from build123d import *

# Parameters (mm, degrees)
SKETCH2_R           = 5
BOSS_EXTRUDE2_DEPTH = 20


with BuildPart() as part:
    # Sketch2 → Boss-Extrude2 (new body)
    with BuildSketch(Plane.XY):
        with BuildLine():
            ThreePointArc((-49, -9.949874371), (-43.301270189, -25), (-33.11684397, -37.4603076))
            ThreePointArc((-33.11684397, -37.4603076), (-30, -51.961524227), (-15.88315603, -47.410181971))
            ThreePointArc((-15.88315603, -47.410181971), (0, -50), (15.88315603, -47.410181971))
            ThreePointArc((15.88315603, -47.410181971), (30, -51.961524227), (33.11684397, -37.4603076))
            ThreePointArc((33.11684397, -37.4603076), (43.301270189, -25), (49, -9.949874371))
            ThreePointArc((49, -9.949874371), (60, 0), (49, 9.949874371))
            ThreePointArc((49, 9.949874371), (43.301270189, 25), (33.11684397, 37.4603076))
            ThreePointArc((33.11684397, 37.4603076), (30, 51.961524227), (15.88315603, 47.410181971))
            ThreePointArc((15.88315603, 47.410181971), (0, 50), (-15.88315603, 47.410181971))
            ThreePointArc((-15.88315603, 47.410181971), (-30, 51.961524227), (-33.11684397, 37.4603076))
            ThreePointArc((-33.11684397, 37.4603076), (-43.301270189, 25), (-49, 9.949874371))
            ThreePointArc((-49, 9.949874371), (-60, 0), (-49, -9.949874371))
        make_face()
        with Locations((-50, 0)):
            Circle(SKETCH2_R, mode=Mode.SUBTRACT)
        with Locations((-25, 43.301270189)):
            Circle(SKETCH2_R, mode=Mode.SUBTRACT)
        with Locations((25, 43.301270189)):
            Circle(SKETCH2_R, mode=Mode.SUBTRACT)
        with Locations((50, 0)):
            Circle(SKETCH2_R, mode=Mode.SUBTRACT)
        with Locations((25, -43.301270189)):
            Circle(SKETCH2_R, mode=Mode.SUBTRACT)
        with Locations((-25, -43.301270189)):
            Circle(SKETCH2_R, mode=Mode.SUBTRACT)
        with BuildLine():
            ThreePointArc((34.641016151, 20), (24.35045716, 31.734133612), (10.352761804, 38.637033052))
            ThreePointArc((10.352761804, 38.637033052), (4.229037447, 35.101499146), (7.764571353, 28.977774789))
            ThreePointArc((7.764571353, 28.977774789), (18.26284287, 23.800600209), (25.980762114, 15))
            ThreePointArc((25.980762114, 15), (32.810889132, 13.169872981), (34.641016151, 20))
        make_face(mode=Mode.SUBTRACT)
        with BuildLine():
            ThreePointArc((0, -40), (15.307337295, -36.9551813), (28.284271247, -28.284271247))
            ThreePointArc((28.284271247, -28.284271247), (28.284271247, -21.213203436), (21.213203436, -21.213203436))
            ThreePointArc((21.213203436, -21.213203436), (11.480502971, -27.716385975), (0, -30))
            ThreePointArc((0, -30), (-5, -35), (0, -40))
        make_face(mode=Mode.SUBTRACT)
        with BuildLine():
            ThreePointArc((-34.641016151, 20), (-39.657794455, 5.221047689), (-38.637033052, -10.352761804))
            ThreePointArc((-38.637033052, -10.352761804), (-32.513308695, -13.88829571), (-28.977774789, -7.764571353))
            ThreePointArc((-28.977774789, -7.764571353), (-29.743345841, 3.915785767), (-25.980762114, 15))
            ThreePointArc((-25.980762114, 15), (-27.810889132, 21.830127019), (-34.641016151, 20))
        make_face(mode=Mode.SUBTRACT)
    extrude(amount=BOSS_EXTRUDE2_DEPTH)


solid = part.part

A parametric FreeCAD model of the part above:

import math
import FreeCAD as App
import Part
import Sketcher

doc = App.newDocument("Part")
body = doc.addObject("PartDesign::Body", "Body")

sketch1 = body.newObject("Sketcher::SketchObject", "Sketch")
sketch1.AttachmentSupport = (doc.getObject("XY_Plane"), [""])
sketch1.MapMode = "FlatFace"
sketch1.addGeometry([
    Part.ArcOfCircle(Part.Circle(App.Vector(0, 0, 0), App.Vector(0, 0, 1), 50), math.radians(-169), math.radians(-131)),
    Part.ArcOfCircle(Part.Circle(App.Vector(-25, -43.3, 0), App.Vector(0, 0, 1), 10), math.radians(144), math.radians(336)),
    Part.ArcOfCircle(Part.Circle(App.Vector(0, 0, 0), App.Vector(0, 0, 1), 50), math.radians(-109), math.radians(-71)),
    Part.ArcOfCircle(Part.Circle(App.Vector(25, -43.3, 0), App.Vector(0, 0, 1), 10), math.radians(-156), math.radians(36)),
    Part.ArcOfCircle(Part.Circle(App.Vector(0, 0, 0), App.Vector(0, 0, 1), 50), math.radians(-49), math.radians(-11)),
    Part.ArcOfCircle(Part.Circle(App.Vector(50, 0, 0), App.Vector(0, 0, 1), 10), math.radians(-96), math.radians(96)),
    Part.ArcOfCircle(Part.Circle(App.Vector(0, 0, 0), App.Vector(0, 0, 1), 50), math.radians(11), math.radians(49)),
    Part.ArcOfCircle(Part.Circle(App.Vector(25, 43.3, 0), App.Vector(0, 0, 1), 10), math.radians(-36), math.radians(156)),
    Part.ArcOfCircle(Part.Circle(App.Vector(0, 0, 0), App.Vector(0, 0, 1), 50), math.radians(71), math.radians(109)),
    Part.ArcOfCircle(Part.Circle(App.Vector(-25, 43.3, 0), App.Vector(0, 0, 1), 10), math.radians(24), math.radians(216)),
    Part.ArcOfCircle(Part.Circle(App.Vector(0, 0, 0), App.Vector(0, 0, 1), 50), math.radians(131), math.radians(169)),
    Part.ArcOfCircle(Part.Circle(App.Vector(-50, 0, 0), App.Vector(0, 0, 1), 10), math.radians(84), math.radians(276)),
    Part.Circle(App.Vector(-25, -43.3, 0), App.Vector(0, 0, 1), 5),
    Part.Circle(App.Vector(-50, 0, 0), App.Vector(0, 0, 1), 5),
    Part.Circle(App.Vector(25, -43.3, 0), App.Vector(0, 0, 1), 5),
    Part.ArcOfCircle(Part.Circle(App.Vector(0, 0, 0), App.Vector(0, 0, 1), 40), math.radians(-90), math.radians(-45)),
    Part.ArcOfCircle(Part.Circle(App.Vector(0, -35, 0), App.Vector(0, 0, 1), 5), math.radians(90), math.radians(270)),
    Part.ArcOfCircle(Part.Circle(App.Vector(0, 0, 0), App.Vector(0, 0, 1), 30), math.radians(-90), math.radians(-45)),
    Part.ArcOfCircle(Part.Circle(App.Vector(24.7, -24.7, 0), App.Vector(0, 0, 1), 5), math.radians(-45), math.radians(135)),
    Part.Circle(App.Vector(50, 0, 0), App.Vector(0, 0, 1), 5),
    Part.ArcOfCircle(Part.Circle(App.Vector(0, 0, 0), App.Vector(0, 0, 1), 40), math.radians(150), math.radians(195)),
    Part.ArcOfCircle(Part.Circle(App.Vector(-30.3, 17.5, 0), App.Vector(0, 0, 1), 5), math.radians(-30), math.radians(150)),
    Part.ArcOfCircle(Part.Circle(App.Vector(0, 0, 0), App.Vector(0, 0, 1), 30), math.radians(150), math.radians(195)),
    Part.ArcOfCircle(Part.Circle(App.Vector(-33.8, -9.1, 0), App.Vector(0, 0, 1), 5), math.radians(-165), math.radians(15)),
    Part.Circle(App.Vector(-25, 43.3, 0), App.Vector(0, 0, 1), 5),
    Part.ArcOfCircle(Part.Circle(App.Vector(0, 0, 0), App.Vector(0, 0, 1), 40), math.radians(30), math.radians(75)),
    Part.ArcOfCircle(Part.Circle(App.Vector(30.3, 17.5, 0), App.Vector(0, 0, 1), 5), math.radians(-150), math.radians(30)),
    Part.ArcOfCircle(Part.Circle(App.Vector(0, 0, 0), App.Vector(0, 0, 1), 30), math.radians(30), math.radians(75)),
    Part.ArcOfCircle(Part.Circle(App.Vector(9.1, 33.8, 0), App.Vector(0, 0, 1), 5), math.radians(75), math.radians(255)),
    Part.Circle(App.Vector(25, 43.3, 0), App.Vector(0, 0, 1), 5),
], False)
sketch1.addConstraint([
    Sketcher.Constraint("Coincident", 0, 2, 1, 1),
    Sketcher.Constraint("Coincident", 1, 2, 2, 1),
    Sketcher.Constraint("Coincident", 2, 2, 3, 1),
    Sketcher.Constraint("Coincident", 3, 2, 4, 1),
    Sketcher.Constraint("Coincident", 4, 2, 5, 1),
    Sketcher.Constraint("Coincident", 5, 2, 6, 1),
    Sketcher.Constraint("Coincident", 6, 2, 7, 1),
    Sketcher.Constraint("Coincident", 7, 2, 8, 1),
    Sketcher.Constraint("Coincident", 8, 2, 9, 1),
    Sketcher.Constraint("Coincident", 9, 2, 10, 1),
    Sketcher.Constraint("Coincident", 10, 2, 11, 1),
    Sketcher.Constraint("Coincident", 11, 2, 0, 1),
    Sketcher.Constraint("Tangent", 15, 1, 16, 2),
    Sketcher.Constraint("Tangent", 16, 1, 17, 1),
    Sketcher.Constraint("Tangent", 17, 2, 18, 2),
    Sketcher.Constraint("Tangent", 18, 1, 15, 2),
    Sketcher.Constraint("Tangent", 20, 1, 21, 2),
    Sketcher.Constraint("Tangent", 21, 1, 22, 1),
    Sketcher.Constraint("Tangent", 22, 2, 23, 2),
    Sketcher.Constraint("Tangent", 23, 1, 20, 2),
    Sketcher.Constraint("Tangent", 25, 1, 26, 2),
    Sketcher.Constraint("Tangent", 26, 1, 27, 1),
    Sketcher.Constraint("Tangent", 27, 2, 28, 2),
    Sketcher.Constraint("Tangent", 28, 1, 25, 2),
    Sketcher.Constraint("Coincident", 0, 3, -1, 1),
    Sketcher.Constraint("Coincident", 2, 3, -1, 1),
    Sketcher.Constraint("Coincident", 4, 3, -1, 1),
    Sketcher.Constraint("Coincident", 6, 3, -1, 1),
    Sketcher.Constraint("Coincident", 8, 3, -1, 1),
    Sketcher.Constraint("Coincident", 10, 3, -1, 1),
    Sketcher.Constraint("Coincident", 15, 3, -1, 1),
    Sketcher.Constraint("Coincident", 17, 3, -1, 1),
    Sketcher.Constraint("Coincident", 20, 3, -1, 1),
    Sketcher.Constraint("Coincident", 22, 3, -1, 1),
    Sketcher.Constraint("Coincident", 25, 3, -1, 1),
    Sketcher.Constraint("Coincident", 27, 3, -1, 1),
    Sketcher.Constraint("Coincident", 12, 3, 1, 3),
    Sketcher.Constraint("Coincident", 13, 3, 11, 3),
    Sketcher.Constraint("Coincident", 14, 3, 3, 3),
    Sketcher.Constraint("Coincident", 19, 3, 5, 3),
    Sketcher.Constraint("Coincident", 24, 3, 9, 3),
    Sketcher.Constraint("Coincident", 29, 3, 7, 3),
    Sketcher.Constraint("Equal", 0, 2),
    Sketcher.Constraint("Equal", 1, 3),
    Sketcher.Constraint("Equal", 2, 4),
    Sketcher.Constraint("Equal", 3, 5),
    Sketcher.Constraint("Equal", 4, 6),
    Sketcher.Constraint("Equal", 5, 7),
    Sketcher.Constraint("Equal", 6, 8),
    Sketcher.Constraint("Equal", 7, 9),
    Sketcher.Constraint("Equal", 8, 10),
    Sketcher.Constraint("Equal", 9, 11),
    Sketcher.Constraint("Equal", 12, 13),
    Sketcher.Constraint("Equal", 13, 14),
    Sketcher.Constraint("Equal", 14, 16),
    Sketcher.Constraint("Equal", 18, 19),
    Sketcher.Constraint("Equal", 15, 20),
    Sketcher.Constraint("Equal", 19, 21),
    Sketcher.Constraint("Equal", 23, 24),
    Sketcher.Constraint("Equal", 20, 25),
    Sketcher.Constraint("Equal", 24, 26),
    Sketcher.Constraint("Equal", 28, 29),
    Sketcher.Constraint("Symmetric", 1, 3, 7, 3, -1, 1),
    Sketcher.Constraint("Symmetric", 3, 3, 9, 3, -1, 1),
    Sketcher.Constraint("Symmetric", 5, 3, 11, 3, -1, 1),
    Sketcher.Constraint("Symmetric", 1, 3, 3, 3, -2),
    Sketcher.Constraint("PointOnObject", 5, 3, -1),
    Sketcher.Constraint("PointOnObject", 16, 3, -2),
    Sketcher.Constraint("Horizontal", 21, 3, 26, 3),
    Sketcher.Constraint("Diameter", 12, 10.0),
    Sketcher.Constraint("Radius", 0, 50.0),
    Sketcher.Constraint("Radius", 1, 10.0),
    Sketcher.Constraint("Radius", 15, 40.0),
    Sketcher.Constraint("DistanceX", 1, 3, -1, 1, 25.0),
    Sketcher.Constraint("DistanceX", -1, 1, 5, 3, 50.0),
    Sketcher.Constraint("DistanceY", -1, 1, 20, 1, 20.0),
    Sketcher.Constraint("DistanceY", 3, 3, 18, 1, 15.016999),
    Sketcher.Constraint("DistanceY", 1, 3, -1, 1, 43.30127),
    Sketcher.Constraint("DistanceY", 22, 2, -1, 1, 7.764571),
    Sketcher.Constraint("DistanceX", -1, 1, 27, 2, 7.764571),
])
pad1 = body.newObject("PartDesign::Pad", "Pad")
pad1.Profile = sketch1
pad1.Length = 20

doc.recompute()
